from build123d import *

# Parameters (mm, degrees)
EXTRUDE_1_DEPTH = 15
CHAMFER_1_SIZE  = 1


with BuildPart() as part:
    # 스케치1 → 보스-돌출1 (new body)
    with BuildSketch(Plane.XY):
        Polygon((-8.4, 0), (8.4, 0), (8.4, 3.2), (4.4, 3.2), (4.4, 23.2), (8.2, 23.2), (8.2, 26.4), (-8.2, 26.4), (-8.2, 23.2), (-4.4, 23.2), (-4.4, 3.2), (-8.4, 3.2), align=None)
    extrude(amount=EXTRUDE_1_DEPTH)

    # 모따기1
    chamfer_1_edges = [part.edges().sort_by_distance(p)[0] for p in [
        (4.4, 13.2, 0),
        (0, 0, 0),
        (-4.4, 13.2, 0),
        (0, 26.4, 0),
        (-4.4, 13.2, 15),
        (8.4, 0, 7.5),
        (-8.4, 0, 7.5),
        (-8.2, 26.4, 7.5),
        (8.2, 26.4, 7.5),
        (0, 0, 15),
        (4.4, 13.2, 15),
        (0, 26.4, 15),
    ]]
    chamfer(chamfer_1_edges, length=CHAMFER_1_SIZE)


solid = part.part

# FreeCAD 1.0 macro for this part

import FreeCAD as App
import Part
import Sketcher

V = App.Vector
Q = App.Units.Quantity


def edges_at(feature, points):
    """Names of the edges that pass closest to the given points."""
    edges = feature.Shape.Edges
    near = lambda p: min(range(len(edges)), key=lambda i: edges[i].distToShape(Part.Vertex(*p))[0])
    return sorted({f"Edge{near(p) + 1}" for p in points})


def add_polygon(sketch, points):
    """Adds a closed chain of lines whose ends are joined by coincident constraints."""
    first, n = sketch.GeometryCount, len(points)
    for a, b in zip(points, points[1:] + points[:1]):
        sketch.addGeometry(Part.LineSegment(App.Vector(*a, 0), App.Vector(*b, 0)), False)
    for i in range(n):
        sketch.addConstraint(Sketcher.Constraint("Coincident", first + i, 2, first + (i + 1) % n, 1))

doc = App.newDocument("Part")
body = doc.addObject("PartDesign::Body", "Body")

# Sketch on XY plane
sketch1 = body.newObject("Sketcher::SketchObject", "Sketch")
sketch1.AttachmentSupport = (doc.getObject("XY_Plane"), [""])
sketch1.MapMode = "FlatFace"
add_polygon(sketch1, [(-8.4, 0), (8.4, 0), (8.4, 3.2), (4.4, 3.2), (4.4, 23.2), (8.2, 23.2), (8.2, 26.4), (-8.2, 26.4), (-8.2, 23.2), (-4.4, 23.2), (-4.4, 3.2), (-8.4, 3.2)])  # lines 0-11
sketch1.addConstraint([
    Sketcher.Constraint("Horizontal", 0),
    Sketcher.Constraint("Vertical", 1),
    Sketcher.Constraint("Horizontal", 2),
    Sketcher.Constraint("Vertical", 3),
    Sketcher.Constraint("Horizontal", 4),
    Sketcher.Constraint("Vertical", 5),
    Sketcher.Constraint("Horizontal", 6),
    Sketcher.Constraint("Vertical", 7),
    Sketcher.Constraint("Horizontal", 8),
    Sketcher.Constraint("Vertical", 9),
    Sketcher.Constraint("Horizontal", 10),
    Sketcher.Constraint("Vertical", 11),
    Sketcher.Constraint("Symmetric", 0, 2, 11, 2, -1, 1),
    Sketcher.Constraint("Symmetric", 4, 2, 7, 2, -2),
    Sketcher.Constraint("Symmetric", 2, 2, 9, 2, -2),
    Sketcher.Constraint("Equal", 1, 5),
    Sketcher.Constraint("DistanceX", 2, 2, 2, 1, Q("4 mm")),
    Sketcher.Constraint("DistanceY", 3, 1, 3, 2, Q("20 mm")),
    Sketcher.Constraint("DistanceX", 0, 1, 0, 2, Q("16.8 mm")),
    Sketcher.Constraint("DistanceX", 4, 1, 4, 2, Q("3.8 mm")),
    Sketcher.Constraint("DistanceY", 1, 1, 1, 2, Q("3.2 mm")),
])
pad1 = body.newObject("PartDesign::Pad", "Pad")
pad1.Profile = sketch1
pad1.Length = 15
doc.recompute()

chamfer = body.newObject("PartDesign::Chamfer", "Chamfer")
chamfer.Base = (pad1, edges_at(pad1, [
    (4.4, 13.2, 0),
    (0, 0, 0),
    (-4.4, 13.2, 0),
    (0, 26.4, 0),
    (-4.4, 13.2, 15),
    (8.4, 0, 7.5),
    (-8.4, 0, 7.5),
    (-8.2, 26.4, 7.5),
    (8.2, 26.4, 7.5),
    (0, 0, 15),
    (4.4, 13.2, 15),
    (0, 26.4, 15),
]))
chamfer.Size = 1

doc.recompute()
